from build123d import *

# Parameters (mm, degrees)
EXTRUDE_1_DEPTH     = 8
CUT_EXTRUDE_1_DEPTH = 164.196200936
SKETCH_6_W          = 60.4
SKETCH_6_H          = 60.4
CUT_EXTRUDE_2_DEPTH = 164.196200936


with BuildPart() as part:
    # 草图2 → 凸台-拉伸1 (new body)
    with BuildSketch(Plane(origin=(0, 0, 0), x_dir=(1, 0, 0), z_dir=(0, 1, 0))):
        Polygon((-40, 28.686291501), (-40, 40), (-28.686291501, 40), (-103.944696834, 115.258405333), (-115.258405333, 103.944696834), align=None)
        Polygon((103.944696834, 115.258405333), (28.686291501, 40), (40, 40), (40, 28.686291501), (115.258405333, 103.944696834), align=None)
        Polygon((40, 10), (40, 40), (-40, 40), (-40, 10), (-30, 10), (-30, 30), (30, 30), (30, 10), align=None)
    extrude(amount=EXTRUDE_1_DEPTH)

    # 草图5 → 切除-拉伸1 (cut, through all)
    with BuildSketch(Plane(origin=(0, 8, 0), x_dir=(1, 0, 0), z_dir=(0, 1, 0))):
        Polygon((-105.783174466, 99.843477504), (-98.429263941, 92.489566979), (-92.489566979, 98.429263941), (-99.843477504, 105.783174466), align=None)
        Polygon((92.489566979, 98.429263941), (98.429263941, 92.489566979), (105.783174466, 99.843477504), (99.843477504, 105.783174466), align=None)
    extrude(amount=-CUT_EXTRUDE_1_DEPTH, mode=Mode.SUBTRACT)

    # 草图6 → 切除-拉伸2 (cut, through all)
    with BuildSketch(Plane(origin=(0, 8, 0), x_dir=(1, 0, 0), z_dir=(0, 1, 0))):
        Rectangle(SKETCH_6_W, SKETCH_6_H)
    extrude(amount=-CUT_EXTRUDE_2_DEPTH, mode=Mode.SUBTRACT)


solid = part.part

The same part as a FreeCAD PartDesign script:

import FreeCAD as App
import Part
import Sketcher

V = App.Vector

doc = App.newDocument("Part")
body = doc.addObject("PartDesign::Body", "Body")

sketch1 = body.newObject("Sketcher::SketchObject", "Sketch")
sketch1.AttachmentSupport = (doc.getObject("XZ_Plane"), [""])
sketch1.MapMode = "FlatFace"
sketch1.addGeometry(Part.LineSegment(V(-29, -40, 0), V(-104, -115, 0)), False)
sketch1.addGeometry(Part.LineSegment(V(-104, -115, 0), V(-115, -104, 0)), False)
sketch1.addGeometry(Part.LineSegment(V(-115, -104, 0), V(-40, -29, 0)), False)
sketch1.addGeometry(Part.LineSegment(V(-40, -29, 0), V(-40, -10, 0)), False)
sketch1.addGeometry(Part.LineSegment(V(-40, -10, 0), V(-30, -10, 0)), False)
sketch1.addGeometry(Part.LineSegment(V(-30, -10, 0), V(-30, -30, 0)), False)
sketch1.addGeometry(Part.LineSegment(V(-30, -30, 0), V(30, -30, 0)), False)
sketch1.addGeometry(Part.LineSegment(V(30, -30, 0), V(30, -10, 0)), False)
sketch1.addGeometry(Part.LineSegment(V(30, -10, 0), V(40, -10, 0)), False)
sketch1.addGeometry(Part.LineSegment(V(40, -10, 0), V(40, -29, 0)), False)
sketch1.addGeometry(Part.LineSegment(V(40, -29, 0), V(115, -104, 0)), False)
sketch1.addGeometry(Part.LineSegment(V(115, -104, 0), V(104, -115, 0)), False)
sketch1.addGeometry(Part.LineSegment(V(104, -115, 0), V(29, -40, 0)), False)
sketch1.addGeometry(Part.LineSegment(V(29, -40, 0), V(-29, -40, 0)), False)
sketch1.addConstraint(Sketcher.Constraint("Coincident", 0, 2, 1, 1))
sketch1.addConstraint(Sketcher.Constraint("Coincident", 1, 2, 2, 1))
sketch1.addConstraint(Sketcher.Constraint("Coincident", 2, 2, 3, 1))
sketch1.addConstraint(Sketcher.Constraint("Coincident", 3, 2, 4, 1))
sketch1.addConstraint(Sketcher.Constraint("Coincident", 4, 2, 5, 1))
sketch1.addConstraint(Sketcher.Constraint("Coincident", 5, 2, 6, 1))
sketch1.addConstraint(Sketcher.Constraint("Coincident", 6, 2, 7, 1))
sketch1.addConstraint(Sketcher.Constraint("Coincident", 7, 2, 8, 1))
sketch1.addConstraint(Sketcher.Constraint("Coincident", 8, 2, 9, 1))
sketch1.addConstraint(Sketcher.Constraint("Coincident", 9, 2, 10, 1))
sketch1.addConstraint(Sketcher.Constraint("Coincident", 10, 2, 11, 1))
sketch1.addConstraint(Sketcher.Constraint("Coincident", 11, 2, 12, 1))
sketch1.addConstraint(Sketcher.Constraint("Coincident", 12, 2, 13, 1))
sketch1.addConstraint(Sketcher.Constraint("Coincident", 13, 2, 0, 1))
sketch1.addConstraint(Sketcher.Constraint("Vertical", 3))
sketch1.addConstraint(Sketcher.Constraint("Horizontal", 4))
sketch1.addConstraint(Sketcher.Constraint("Vertical", 5))
sketch1.addConstraint(Sketcher.Constraint("Horizontal", 6))
sketch1.addConstraint(Sketcher.Constraint("Vertical", 7))
sketch1.addConstraint(Sketcher.Constraint("Horizontal", 8))
sketch1.addConstraint(Sketcher.Constraint("Vertical", 9))
sketch1.addConstraint(Sketcher.Constraint("Horizontal", 13))
sketch1.addConstraint(Sketcher.Constraint("Symmetric", 4, 2, 7, 2, -2))
sketch1.addConstraint(Sketcher.Constraint("Symmetric", 2, 2, 9, 2, -2))
sketch1.addConstraint(Sketcher.Constraint("Symmetric", 1, 2, 10, 2, -2))
sketch1.addConstraint(Sketcher.Constraint("Symmetric", 0, 2, 11, 2, -2))
sketch1.addConstraint(Sketcher.Constraint("Perpendicular", 0, 1))
sketch1.addConstraint(Sketcher.Constraint("Perpendicular", 1, 2))
sketch1.addConstraint(Sketcher.Constraint("Perpendicular", 2, 10))
sketch1.addConstraint(Sketcher.Constraint("Perpendicular", 11, 12))
sketch1.addConstraint(Sketcher.Constraint("Equal", 0, 2))
sketch1.addConstraint(Sketcher.Constraint("DistanceX", 4, 1, 4, 2, 10.0))
sketch1.addConstraint(Sketcher.Constraint("DistanceX", 6, 1, 6, 2, 60.0))
sketch1.addConstraint(Sketcher.Constraint("DistanceY", 5, 2, 5, 1, 20.0))
sketch1.addConstraint(Sketcher.Constraint("Distance", 1, 16.0))
sketch1.addConstraint(Sketcher.Constraint("DistanceY", 3, 2, -1, 1, 10.0))
sketch1.addConstraint(Sketcher.Constraint("DistanceY", 12, 2, -1, 1, 40.0))
sketch1.addConstraint(Sketcher.Constraint("Distance", 0, 106.431458))
pad1 = body.newObject("PartDesign::Pad", "Pad")
pad1.Profile = sketch1
pad1.Length = 8
pad1.Reversed = True

sketch2 = body.newObject("Sketcher::SketchObject", "Sketch001")
sketch2.AttachmentSupport = (doc.getObject("XZ_Plane"), [""])
sketch2.MapMode = "FlatFace"
sketch2.AttachmentOffset = App.Placement(V(0, 0, -8), App.Rotation())
sketch2.addGeometry(Part.LineSegment(V(-106, -100, 0), V(-98, -92, 0)), False)
sketch2.addGeometry(Part.LineSegment(V(-98, -92, 0), V(-92, -98, 0)), False)
sketch2.addGeometry(Part.LineSegment(V(-92, -98, 0), V(-100, -106, 0)), False)
sketch2.addGeometry(Part.LineSegment(V(-100, -106, 0), V(-106, -100, 0)), False)
sketch2.addGeometry(Part.LineSegment(V(92, -98, 0), V(98, -92, 0)), False)
sketch2.addGeometry(Part.LineSegment(V(98, -92, 0), V(106, -100, 0)), False)
sketch2.addGeometry(Part.LineSegment(V(106, -100, 0), V(100, -106, 0)), False)
sketch2.addGeometry(Part.LineSegment(V(100, -106, 0), V(92, -98, 0)), False)
sketch2.addConstraint(Sketcher.Constraint("Coincident", 0, 2, 1, 1))
sketch2.addConstraint(Sketcher.Constraint("Coincident", 1, 2, 2, 1))
sketch2.addConstraint(Sketcher.Constraint("Coincident", 2, 2, 3, 1))
sketch2.addConstraint(Sketcher.Constraint("Coincident", 3, 2, 0, 1))
sketch2.addConstraint(Sketcher.Constraint("Coincident", 4, 2, 5, 1))
sketch2.addConstraint(Sketcher.Constraint("Coincident", 5, 2, 6, 1))
sketch2.addConstraint(Sketcher.Constraint("Coincident", 6, 2, 7, 1))
sketch2.addConstraint(Sketcher.Constraint("Coincident", 7, 2, 4, 1))
sketch2.addConstraint(Sketcher.Constraint("Symmetric", 0, 2, 4, 2, -2))
sketch2.addConstraint(Sketcher.Constraint("Symmetric", 3, 2, 5, 2, -2))
sketch2.addConstraint(Sketcher.Constraint("Symmetric", 2, 2, 6, 2, -2))
sketch2.addConstraint(Sketcher.Constraint("Symmetric", 1, 2, 7, 2, -2))
sketch2.addConstraint(Sketcher.Constraint("Perpendicular", 0, 1))
sketch2.addConstraint(Sketcher.Constraint("Perpendicular", 1, 2))
sketch2.addConstraint(Sketcher.Constraint("Perpendicular", 2, 3))
sketch2.addConstraint(Sketcher.Constraint("Perpendicular", 3, 4))
sketch2.addConstraint(Sketcher.Constraint("Distance", 0, 10.4))
sketch2.addConstraint(Sketcher.Constraint("Distance", 1, 8.4))
sketch2.addConstraint(Sketcher.Constraint("DistanceX", 1, 2, 4, 2, 190.918831))
sketch2.addConstraint(Sketcher.Constraint("DistanceY", 0, 2, -1, 1, 92.489567))
pocket1 = body.newObject("PartDesign::Pocket", "Pocket")
pocket1.Profile = sketch2
pocket1.Type = "ThroughAll"
pocket1.Reversed = True

sketch3 = body.newObject("Sketcher::SketchObject", "Sketch002")
sketch3.AttachmentSupport = (doc.getObject("XZ_Plane"), [""])
sketch3.MapMode = "FlatFace"
sketch3.AttachmentOffset = App.Placement(V(0, 0, -8), App.Rotation())
sketch3.addGeometry(Part.LineSegment(V(-30, -30, 0), V(-30, 30, 0)), False)
sketch3.addGeometry(Part.LineSegment(V(-30, 30, 0), V(30, 30, 0)), False)
sketch3.addGeometry(Part.LineSegment(V(30, 30, 0), V(30, -30, 0)), False)
sketch3.addGeometry(Part.LineSegment(V(30, -30, 0), V(-30, -30, 0)), False)
sketch3.addConstraint(Sketcher.Constraint("Coincident", 0, 2, 1, 1))
sketch3.addConstraint(Sketcher.Constraint("Coincident", 1, 2, 2, 1))
sketch3.addConstraint(Sketcher.Constraint("Coincident", 2, 2, 3, 1))
sketch3.addConstraint(Sketcher.Constraint("Coincident", 3, 2, 0, 1))
sketch3.addConstraint(Sketcher.Constraint("Vertical", 0))
sketch3.addConstraint(Sketcher.Constraint("Horizontal", 1))
sketch3.addConstraint(Sketcher.Constraint("Vertical", 2))
sketch3.addConstraint(Sketcher.Constraint("Horizontal", 3))
sketch3.addConstraint(Sketcher.Constraint("Symmetric", 0, 2, 2, 2, -1, 1))
sketch3.addConstraint(Sketcher.Constraint("Equal", 3, 0))
sketch3.addConstraint(Sketcher.Constraint("DistanceX", 1, 1, 1, 2, 60.4))
pocket2 = body.newObject("PartDesign::Pocket", "Pocket001")
pocket2.Profile = sketch3
pocket2.Type = "ThroughAll"
pocket2.Reversed = True

doc.recompute()
